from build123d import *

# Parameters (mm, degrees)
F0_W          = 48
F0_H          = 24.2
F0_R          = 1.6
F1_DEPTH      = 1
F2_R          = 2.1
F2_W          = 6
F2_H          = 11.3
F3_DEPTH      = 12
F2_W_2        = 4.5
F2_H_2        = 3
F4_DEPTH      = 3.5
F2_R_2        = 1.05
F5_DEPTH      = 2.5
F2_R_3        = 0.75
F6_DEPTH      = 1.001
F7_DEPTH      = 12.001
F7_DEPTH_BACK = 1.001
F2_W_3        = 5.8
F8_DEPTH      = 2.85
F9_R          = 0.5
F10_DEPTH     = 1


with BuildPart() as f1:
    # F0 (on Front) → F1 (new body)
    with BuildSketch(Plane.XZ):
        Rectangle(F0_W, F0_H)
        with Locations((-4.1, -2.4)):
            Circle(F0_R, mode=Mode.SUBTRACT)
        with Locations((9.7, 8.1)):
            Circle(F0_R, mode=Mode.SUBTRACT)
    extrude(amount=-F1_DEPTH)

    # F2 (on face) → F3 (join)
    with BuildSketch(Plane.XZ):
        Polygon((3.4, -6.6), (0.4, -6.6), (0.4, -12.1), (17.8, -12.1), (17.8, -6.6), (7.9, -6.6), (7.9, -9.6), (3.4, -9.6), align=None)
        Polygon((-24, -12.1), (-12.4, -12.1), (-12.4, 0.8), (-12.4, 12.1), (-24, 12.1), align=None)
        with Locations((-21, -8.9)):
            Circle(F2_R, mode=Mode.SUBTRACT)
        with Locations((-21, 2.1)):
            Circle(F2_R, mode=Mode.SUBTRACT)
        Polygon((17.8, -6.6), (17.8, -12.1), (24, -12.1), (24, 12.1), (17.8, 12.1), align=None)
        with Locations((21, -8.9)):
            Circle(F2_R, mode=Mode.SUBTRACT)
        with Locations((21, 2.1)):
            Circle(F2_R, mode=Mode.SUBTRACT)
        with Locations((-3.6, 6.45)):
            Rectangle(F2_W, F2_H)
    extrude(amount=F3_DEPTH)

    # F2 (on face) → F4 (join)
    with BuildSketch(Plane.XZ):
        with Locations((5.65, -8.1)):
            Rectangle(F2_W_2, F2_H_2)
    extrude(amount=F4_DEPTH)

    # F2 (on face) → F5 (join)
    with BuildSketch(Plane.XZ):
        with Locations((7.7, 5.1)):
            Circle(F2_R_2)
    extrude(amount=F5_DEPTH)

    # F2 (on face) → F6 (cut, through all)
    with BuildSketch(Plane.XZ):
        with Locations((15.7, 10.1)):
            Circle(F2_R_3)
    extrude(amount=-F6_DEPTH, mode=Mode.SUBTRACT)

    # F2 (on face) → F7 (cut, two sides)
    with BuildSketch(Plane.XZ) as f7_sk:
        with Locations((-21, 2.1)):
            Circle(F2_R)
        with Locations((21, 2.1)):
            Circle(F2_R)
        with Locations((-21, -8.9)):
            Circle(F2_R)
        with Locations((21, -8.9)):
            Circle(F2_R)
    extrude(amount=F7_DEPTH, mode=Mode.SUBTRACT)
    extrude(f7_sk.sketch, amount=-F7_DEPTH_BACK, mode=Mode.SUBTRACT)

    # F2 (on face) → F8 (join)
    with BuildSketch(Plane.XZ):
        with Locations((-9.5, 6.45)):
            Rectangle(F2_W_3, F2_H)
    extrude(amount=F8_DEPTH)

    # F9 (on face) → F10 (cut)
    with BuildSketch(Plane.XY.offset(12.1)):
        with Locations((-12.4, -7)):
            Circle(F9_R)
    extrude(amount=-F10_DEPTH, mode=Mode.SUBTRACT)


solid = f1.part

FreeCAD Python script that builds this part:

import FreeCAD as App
import Part
import Sketcher

V = App.Vector


def add_polygon(sketch, points):
    """Adds a closed chain of lines whose ends are joined by coincident constraints."""
    first, n = sketch.GeometryCount, len(points)
    for a, b in zip(points, points[1:] + points[:1]):
        sketch.addGeometry(Part.LineSegment(App.Vector(*a, 0), App.Vector(*b, 0)), False)
    for i in range(n):
        sketch.addConstraint(Sketcher.Constraint("Coincident", first + i, 2, first + (i + 1) % n, 1))

doc = App.newDocument("Part")
params = doc.addObject("Spreadsheet::Sheet", "Params")
for row, (alias, value) in enumerate([
    ("sketch1_diameter", "3.2 mm"),
    ("sketch1_width", "48 mm"),
    ("sketch1_height", "24.2 mm"),
    ("pad1_length", "1 mm"),
    ("sketch2_diameter", "4.2 mm"),
    ("sketch2_width", "3 mm"),
    ("sketch2_width2", "6 mm"),
    ("sketch2_width3", "23.6 mm"),
    ("sketch2_width4", "6.2 mm"),
    ("pad2_length", "12 mm"),
    ("sketch3_height", "3 mm"),
    ("sketch3_width", "4.5 mm"),
    ("pad3_length", "3.5 mm"),
    ("sketch4_diameter", "2.1 mm"),
    ("pad4_length", "2.5 mm"),
    ("sketch5_diameter", "1.5 mm"),
    ("sketch6_diameter", "4.2 mm"),
    ("sketch7_width", "5.8 mm"),
    ("sketch7_height", "11.3 mm"),
    ("pad5_length", "2.85 mm"),
    ("sketch8_diameter", "1 mm"),
    ("pocket3_length", "1 mm"),
], start=1):
    params.set(f"A{row}", alias)
    params.set(f"B{row}", "=" + value)
    params.setAlias(f"B{row}", alias)

body = doc.addObject("PartDesign::Body", "Body")

sketch1 = body.newObject("Sketcher::SketchObject", "Sketch")
sketch1.AttachmentSupport = (doc.getObject("XZ_Plane"), [""])
sketch1.MapMode = "FlatFace"
add_polygon(sketch1, [(-24, 12.1), (-24, -12.1), (24, -12.1), (24, 12.1)])
sketch1.addGeometry(Part.Circle(V(-4.1, -2.4, 0), V(0, 0, 1), 1.6), False)
sketch1.addGeometry(Part.Circle(V(9.7, 8.1, 0), V(0, 0, 1), 1.6), False)
sketch1.addConstraint(Sketcher.Constraint("Vertical", 0))
sketch1.addConstraint(Sketcher.Constraint("Horizontal", 1))
sketch1.addConstraint(Sketcher.Constraint("Vertical", 2))
sketch1.addConstraint(Sketcher.Constraint("Horizontal", 3))
sketch1.addConstraint(Sketcher.Constraint("Equal", 4, 5))
sketch1.addConstraint(Sketcher.Constraint("Symmetric", 0, 2, 2, 2, -1, 1))
sketch1.addConstraint(Sketcher.Constraint("Diameter", 4, 3.2))
sketch1.addConstraint(Sketcher.Constraint("DistanceX", 1, 1, 1, 2, 48.0))
sketch1.addConstraint(Sketcher.Constraint("DistanceY", 0, 2, 0, 1, 24.2))
sketch1.addConstraint(Sketcher.Constraint("DistanceY", 5, 3, 2, 2, 4.0))
sketch1.addConstraint(Sketcher.Constraint("DistanceX", 4, 3, -1, 1, 4.1))
sketch1.addConstraint(Sketcher.Constraint("DistanceY", 4, 3, -1, 1, 2.4))
sketch1.addConstraint(Sketcher.Constraint("DistanceX", -1, 1, 5, 3, 9.7))
sketch1.setExpression("Constraints[10]", "Params.sketch1_diameter")
sketch1.setExpression("Constraints[11]", "Params.sketch1_width")
sketch1.setExpression("Constraints[12]", "Params.sketch1_height")
pad1 = body.newObject("PartDesign::Pad", "Pad")
pad1.Profile = sketch1
pad1.setExpression("Length", "Params.pad1_length")
pad1.Reversed = True

sketch2 = body.newObject("Sketcher::SketchObject", "Sketch001")
sketch2.AttachmentSupport = (doc.getObject("XZ_Plane"), [""])
sketch2.MapMode = "FlatFace"
add_polygon(sketch2, [(3.4, -6.6), (0.4, -6.6), (0.4, -12.1), (24, -12.1), (24, 12.1), (17.8, 12.1), (17.8, -6.6), (7.9, -6.6), (7.9, -9.6), (3.4, -9.6)])
sketch2.addGeometry(Part.Circle(V(21, -8.9, 0), V(0, 0, 1), 2.1), False)
sketch2.addGeometry(Part.Circle(V(21, 2.1, 0), V(0, 0, 1), 2.1), False)
add_polygon(sketch2, [(-24, -12.1), (-12.4, -12.1), (-12.4, 12.1), (-24, 12.1)])
sketch2.addGeometry(Part.Circle(V(-21, -8.9, 0), V(0, 0, 1), 2.1), False)
sketch2.addGeometry(Part.Circle(V(-21, 2.1, 0), V(0, 0, 1), 2.1), False)
add_polygon(sketch2, [(-6.6, 12.1), (-6.6, 0.8), (-0.6, 0.8), (-0.6, 12.1)])
sketch2.addConstraint(Sketcher.Constraint("Horizontal", 0))
sketch2.addConstraint(Sketcher.Constraint("Vertical", 1))
sketch2.addConstraint(Sketcher.Constraint("Horizontal", 2))
sketch2.addConstraint(Sketcher.Constraint("Vertical", 3))
sketch2.addConstraint(Sketcher.Constraint("Horizontal", 4))
sketch2.addConstraint(Sketcher.Constraint("Vertical", 5))
sketch2.addConstraint(Sketcher.Constraint("Horizontal", 6))
sketch2.addConstraint(Sketcher.Constraint("Vertical", 7))
sketch2.addConstraint(Sketcher.Constraint("Horizontal", 8))
sketch2.addConstraint(Sketcher.Constraint("Vertical", 9))
sketch2.addConstraint(Sketcher.Constraint("Horizontal", 12))
sketch2.addConstraint(Sketcher.Constraint("Vertical", 13))
sketch2.addConstraint(Sketcher.Constraint("Horizontal", 14))
sketch2.addConstraint(Sketcher.Constraint("Vertical", 15))
sketch2.addConstraint(Sketcher.Constraint("Vertical", 18))
sketch2.addConstraint(Sketcher.Constraint("Horizontal", 19))
sketch2.addConstraint(Sketcher.Constraint("Vertical", 20))
sketch2.addConstraint(Sketcher.Constraint("Horizontal", 21))
sketch2.addConstraint(Sketcher.Constraint("Equal", 10, 11))
sketch2.addConstraint(Sketcher.Constraint("Equal", 11, 16))
sketch2.addConstraint(Sketcher.Constraint("Equal", 16, 17))
sketch2.addConstraint(Sketcher.Constraint("Symmetric", 2, 2, 14, 2, -1, 1))
sketch2.addConstraint(Sketcher.Constraint("Symmetric", 10, 3, 16, 3, -2))
sketch2.addConstraint(Sketcher.Constraint("Symmetric", 11, 3, 17, 3, -2))
sketch2.addConstraint(Sketcher.Constraint("Horizontal", 0, 2, 5, 2))
sketch2.addConstraint(Sketcher.Constraint("Horizontal", 2, 2, 12, 2))
sketch2.addConstraint(Sketcher.Constraint("Horizontal", 4, 2, 13, 2))
sketch2.addConstraint(Sketcher.Constraint("Horizontal", 14, 2, 20, 2))
sketch2.addConstraint(Sketcher.Constraint("Vertical", 10, 3, 11, 3))
sketch2.addConstraint(Sketcher.Constraint("Equal", 0, 7))
sketch2.addConstraint(Sketcher.Constraint("Diameter", 10, 4.2))
sketch2.addConstraint(Sketcher.Constraint("DistanceX", 0, 2, 0, 1, 3.0))
sketch2.addConstraint(Sketcher.Constraint("DistanceX", 19, 1, 19, 2, 6.0))
sketch2.addConstraint(Sketcher.Constraint("DistanceX", 2, 1, 2, 2, 23.6))
sketch2.addConstraint(Sketcher.Constraint("DistanceX", 4, 2, 4, 1, 6.2))
sketch2.addConstraint(Sketcher.Constraint("DistanceX", 6, 2, 6, 1, 9.9))
sketch2.addConstraint(Sketcher.Constraint("DistanceX", 12, 1, 12, 2, 11.6))
sketch2.addConstraint(Sketcher.Constraint("DistanceY", 1, 2, 1, 1, 5.5))
sketch2.addConstraint(Sketcher.Constraint("DistanceY", 3, 1, 3, 2, 24.2))
sketch2.addConstraint(Sketcher.Constraint("DistanceY", 18, 2, 18, 1, 11.3))
sketch2.addConstraint(Sketcher.Constraint("DistanceX", -1, 1, 10, 3, 21.0))
sketch2.addConstraint(Sketcher.Constraint("DistanceX", -1, 1, 2, 2, 24.0))
sketch2.addConstraint(Sketcher.Constraint("DistanceY", 10, 3, 11, 3, 11.0))
sketch2.addConstraint(Sketcher.Constraint("DistanceY", 11, 3, 3, 2, 10.0))
sketch2.addConstraint(Sketcher.Constraint("DistanceX", 18, 2, 0, 2, 7.0))
sketch2.setExpression("Constraints[48]", "Params.sketch2_diameter")
sketch2.setExpression("Constraints[49]", "Params.sketch2_width")
sketch2.setExpression("Constraints[50]", "Params.sketch2_width2")
sketch2.setExpression("Constraints[51]", "Params.sketch2_width3")
sketch2.setExpression("Constraints[52]", "Params.sketch2_width4")
pad2 = body.newObject("PartDesign::Pad", "Pad001")
pad2.Profile = sketch2
pad2.setExpression("Length", "Params.pad2_length")

sketch3 = body.newObject("Sketcher::SketchObject", "Sketch002")
sketch3.AttachmentSupport = (doc.getObject("XZ_Plane"), [""])
sketch3.MapMode = "FlatFace"
add_polygon(sketch3, [(3.4, -6.6), (3.4, -9.6), (7.9, -9.6), (7.9, -6.6)])
sketch3.addConstraint(Sketcher.Constraint("Vertical", 0))
sketch3.addConstraint(Sketcher.Constraint("Horizontal", 1))
sketch3.addConstraint(Sketcher.Constraint("Vertical", 2))
sketch3.addConstraint(Sketcher.Constraint("Horizontal", 3))
sketch3.addConstraint(Sketcher.Constraint("DistanceY", 0, 2, 0, 1, 3.0))
sketch3.addConstraint(Sketcher.Constraint("DistanceX", 1, 1, 1, 2, 4.5))
sketch3.addConstraint(Sketcher.Constraint("DistanceX", -1, 1, 0, 2, 3.4))
sketch3.addConstraint(Sketcher.Constraint("DistanceY", 0, 2, -1, 1, 9.6))
sketch3.setExpression("Constraints[8]", "Params.sketch3_height")
sketch3.setExpression("Constraints[9]", "Params.sketch3_width")
pad3 = body.newObject("PartDesign::Pad", "Pad002")
pad3.Profile = sketch3
pad3.setExpression("Length", "Params.pad3_length")

sketch4 = body.newObject("Sketcher::SketchObject", "Sketch003")
sketch4.AttachmentSupport = (doc.getObject("XZ_Plane"), [""])
sketch4.MapMode = "FlatFace"
sketch4.addGeometry(Part.Circle(V(7.7, 5.1, 0), V(0, 0, 1), 1.1), False)
sketch4.addConstraint(Sketcher.Constraint("Diameter", 0, 2.1))
sketch4.addConstraint(Sketcher.Constraint("DistanceX", -1, 1, 0, 3, 7.7))
sketch4.addConstraint(Sketcher.Constraint("DistanceY", -1, 1, 0, 3, 5.1))
sketch4.setExpression("Constraints[0]", "Params.sketch4_diameter")
pad4 = body.newObject("PartDesign::Pad", "Pad003")
pad4.Profile = sketch4
pad4.setExpression("Length", "Params.pad4_length")

sketch5 = body.newObject("Sketcher::SketchObject", "Sketch004")
sketch5.AttachmentSupport = (doc.getObject("XZ_Plane"), [""])
sketch5.MapMode = "FlatFace"
sketch5.addGeometry(Part.Circle(V(15.7, 10.1, 0), V(0, 0, 1), 0.8), False)
sketch5.addConstraint(Sketcher.Constraint("Diameter", 0, 1.5))
sketch5.addConstraint(Sketcher.Constraint("DistanceX", -1, 1, 0, 3, 15.7))
sketch5.addConstraint(Sketcher.Constraint("DistanceY", -1, 1, 0, 3, 10.1))
sketch5.setExpression("Constraints[0]", "Params.sketch5_diameter")
pocket1 = body.newObject("PartDesign::Pocket", "Pocket")
pocket1.Profile = sketch5
pocket1.Type = "ThroughAll"

sketch6 = body.newObject("Sketcher::SketchObject", "Sketch005")
sketch6.AttachmentSupport = (doc.getObject("XZ_Plane"), [""])
sketch6.MapMode = "FlatFace"
sketch6.addGeometry(Part.Circle(V(-21, 2.1, 0), V(0, 0, 1), 2.1), False)
sketch6.addGeometry(Part.Circle(V(21, 2.1, 0), V(0, 0, 1), 2.1), False)
sketch6.addGeometry(Part.Circle(V(-21, -8.9, 0), V(0, 0, 1), 2.1), False)
sketch6.addGeometry(Part.Circle(V(21, -8.9, 0), V(0, 0, 1), 2.1), False)
sketch6.addConstraint(Sketcher.Constraint("Equal", 0, 1))
sketch6.addConstraint(Sketcher.Constraint("Equal", 1, 2))
sketch6.addConstraint(Sketcher.Constraint("Equal", 2, 3))
sketch6.addConstraint(Sketcher.Constraint("Symmetric", 0, 3, 1, 3, -2))
sketch6.addConstraint(Sketcher.Constraint("Symmetric", 2, 3, 3, 3, -2))
sketch6.addConstraint(Sketcher.Constraint("Vertical", 0, 3, 2, 3))
sketch6.addConstraint(Sketcher.Constraint("Diameter", 0, 4.2))
sketch6.addConstraint(Sketcher.Constraint("DistanceX", 0, 3, -1, 1, 21.0))
sketch6.addConstraint(Sketcher.Constraint("DistanceY", 2, 3, 0, 3, 11.0))
sketch6.addConstraint(Sketcher.Constraint("DistanceY", -1, 1, 0, 3, 2.1))
sketch6.setExpression("Constraints[6]", "Params.sketch6_diameter")
pocket2 = body.newObject("PartDesign::Pocket", "Pocket001")
pocket2.Profile = sketch6
pocket2.Type = "ThroughAll"
pocket2.Midplane = True

sketch7 = body.newObject("Sketcher::SketchObject", "Sketch006")
sketch7.AttachmentSupport = (doc.getObject("XZ_Plane"), [""])
sketch7.MapMode = "FlatFace"
add_polygon(sketch7, [(-12, 12), (-12, 1), (-7, 1), (-7, 12)])
sketch7.addConstraint(Sketcher.Constraint("Vertical", 0))
sketch7.addConstraint(Sketcher.Constraint("Horizontal", 1))
sketch7.addConstraint(Sketcher.Constraint("Vertical", 2))
sketch7.addConstraint(Sketcher.Constraint("Horizontal", 3))
sketch7.addConstraint(Sketcher.Constraint("DistanceX", 1, 1, 1, 2, 5.8))
sketch7.addConstraint(Sketcher.Constraint("DistanceY", 0, 2, 0, 1, 11.3))
sketch7.addConstraint(Sketcher.Constraint("DistanceX", 0, 2, -1, 1, 12.4))
sketch7.addConstraint(Sketcher.Constraint("DistanceY", -1, 1, 0, 2, 0.8))
sketch7.setExpression("Constraints[8]", "Params.sketch7_width")
sketch7.setExpression("Constraints[9]", "Params.sketch7_height")
pad5 = body.newObject("PartDesign::Pad", "Pad004")
pad5.Profile = sketch7
pad5.setExpression("Length", "Params.pad5_length")

sketch8 = body.newObject("Sketcher::SketchObject", "Sketch007")
sketch8.AttachmentSupport = (doc.getObject("XY_Plane"), [""])
sketch8.MapMode = "FlatFace"
sketch8.AttachmentOffset = App.Placement(V(0, 0, 12.1), App.Rotation())
sketch8.addGeometry(Part.Circle(V(-12.4, -7, 0), V(0, 0, 1), 0.5), False)
sketch8.addConstraint(Sketcher.Constraint("Diameter", 0, 1.0))
sketch8.addConstraint(Sketcher.Constraint("DistanceY", 0, 3, -1, 1, 7.0))
sketch8.addConstraint(Sketcher.Constraint("DistanceX", 0, 3, -1, 1, 12.4))
sketch8.setExpression("Constraints[0]", "Params.sketch8_diameter")
pocket3 = body.newObject("PartDesign::Pocket", "Pocket002")
pocket3.Profile = sketch8
pocket3.setExpression("Length", "Params.pocket3_length")

doc.recompute()
